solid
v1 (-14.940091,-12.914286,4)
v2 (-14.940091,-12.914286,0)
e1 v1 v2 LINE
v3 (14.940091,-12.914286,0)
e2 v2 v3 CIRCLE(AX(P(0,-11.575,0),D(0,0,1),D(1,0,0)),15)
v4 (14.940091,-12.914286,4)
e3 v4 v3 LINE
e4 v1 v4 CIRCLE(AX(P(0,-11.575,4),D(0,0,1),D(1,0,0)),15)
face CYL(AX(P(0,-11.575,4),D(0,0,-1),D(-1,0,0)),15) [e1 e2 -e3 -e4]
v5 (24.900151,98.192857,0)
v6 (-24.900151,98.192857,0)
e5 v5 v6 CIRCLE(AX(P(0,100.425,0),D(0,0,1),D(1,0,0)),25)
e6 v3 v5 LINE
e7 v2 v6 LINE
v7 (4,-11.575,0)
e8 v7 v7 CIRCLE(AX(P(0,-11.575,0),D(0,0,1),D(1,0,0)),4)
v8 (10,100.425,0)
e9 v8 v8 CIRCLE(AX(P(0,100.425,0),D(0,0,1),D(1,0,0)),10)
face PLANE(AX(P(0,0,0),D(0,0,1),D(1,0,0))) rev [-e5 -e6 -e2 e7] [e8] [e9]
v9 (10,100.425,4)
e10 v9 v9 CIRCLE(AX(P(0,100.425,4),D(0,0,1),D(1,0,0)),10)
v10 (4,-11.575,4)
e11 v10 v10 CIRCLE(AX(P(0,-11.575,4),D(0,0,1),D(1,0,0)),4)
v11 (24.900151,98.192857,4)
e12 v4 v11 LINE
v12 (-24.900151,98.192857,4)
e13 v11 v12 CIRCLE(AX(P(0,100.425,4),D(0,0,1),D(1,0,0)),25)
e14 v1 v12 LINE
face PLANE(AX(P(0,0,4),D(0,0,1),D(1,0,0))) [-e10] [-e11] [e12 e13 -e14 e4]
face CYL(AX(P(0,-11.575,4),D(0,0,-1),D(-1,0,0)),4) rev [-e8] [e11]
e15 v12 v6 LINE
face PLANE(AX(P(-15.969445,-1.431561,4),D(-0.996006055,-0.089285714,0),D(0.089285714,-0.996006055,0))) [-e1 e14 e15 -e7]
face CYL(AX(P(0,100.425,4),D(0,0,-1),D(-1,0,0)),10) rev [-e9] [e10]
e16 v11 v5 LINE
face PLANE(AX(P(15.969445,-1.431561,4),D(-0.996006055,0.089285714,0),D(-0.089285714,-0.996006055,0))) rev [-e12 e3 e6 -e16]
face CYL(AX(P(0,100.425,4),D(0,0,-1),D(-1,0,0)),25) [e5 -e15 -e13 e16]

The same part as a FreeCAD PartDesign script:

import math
import FreeCAD as App
import Part
import Sketcher
from FreeCAD import Vector
Q = App.Units.Quantity

doc = App.newDocument("Part")
params = doc.addObject("Spreadsheet::Sheet", "Params")
for row, (alias, value) in enumerate([
    ("sketch1_diameter", "8 mm"),
    ("sketch1_diameter2", "20 mm"),
    ("sketch1_radius", "15 mm"),
    ("sketch1_radius2", "25 mm"),
    ("pad1_length", "4 mm"),
], start=1):
    params.set(f"A{row}", alias)
    params.set(f"B{row}", "=" + value)
    params.setAlias(f"B{row}", alias)

body = doc.addObject("PartDesign::Body", "Body")

# Sketch on XY plane
sketch1 = doc.addObject("Sketcher::SketchObject", "Sketch")
body.addObject(sketch1)
sketch1.AttachmentSupport = (doc.XY_Plane, [""])
sketch1.MapMode = "FlatFace"
sketch1.addGeometry(Part.LineSegment(Vector(-24.900151, 98.192857, 0), Vector(-14.940091, -12.914286, 0)), False)
sketch1.addGeometry(Part.ArcOfCircle(Part.Circle(Vector(0, -11.575, 0), Vector(0, 0, 1), 15), math.radians(-174.877484), math.radians(-5.122516)), False)
sketch1.addGeometry(Part.LineSegment(Vector(14.940091, -12.914286, 0), Vector(24.900151, 98.192857, 0)), False)
sketch1.addGeometry(Part.ArcOfCircle(Part.Circle(Vector(0, 100.425, 0), Vector(0, 0, 1), 25), math.radians(-5.122516), math.radians(185.122516)), False)
sketch1.addGeometry(Part.Circle(Vector(0, -11.575, 0), Vector(0, 0, 1), 4), False)
sketch1.addGeometry(Part.Circle(Vector(0, 100.425, 0), Vector(0, 0, 1), 10), False)
sketch1.addConstraint(Sketcher.Constraint("Tangent", 0, 2, 1, 1))
sketch1.addConstraint(Sketcher.Constraint("Tangent", 1, 2, 2, 1))
sketch1.addConstraint(Sketcher.Constraint("Tangent", 2, 2, 3, 1))
sketch1.addConstraint(Sketcher.Constraint("Tangent", 3, 2, 0, 1))
sketch1.addConstraint(Sketcher.Constraint("Coincident", 4, 3, 1, 3))
sketch1.addConstraint(Sketcher.Constraint("Coincident", 5, 3, 3, 3))
sketch1.addConstraint(Sketcher.Constraint("Symmetric", 0, 2, 1, 2, -2))
sketch1.addConstraint(Sketcher.Constraint("Diameter", 4, Q("8 mm")))
sketch1.addConstraint(Sketcher.Constraint("Diameter", 5, Q("20 mm")))
sketch1.addConstraint(Sketcher.Constraint("Radius", 1, Q("15 mm")))
sketch1.addConstraint(Sketcher.Constraint("Radius", 3, Q("25 mm")))
sketch1.addConstraint(Sketcher.Constraint("DistanceY", 1, 3, 3, 3, Q("112 mm")))
sketch1.addConstraint(Sketcher.Constraint("DistanceY", 1, 3, -1, 1, Q("11.575 mm")))
sketch1.setExpression("Constraints[7]", "Params.sketch1_diameter")
sketch1.setExpression("Constraints[8]", "Params.sketch1_diameter2")
sketch1.setExpression("Constraints[9]", "Params.sketch1_radius")
sketch1.setExpression("Constraints[10]", "Params.sketch1_radius2")
pad1 = doc.addObject("PartDesign::Pad", "Pad")
body.addObject(pad1)
pad1.Profile = sketch1
pad1.setExpression("Length", "Params.pad1_length")

doc.recompute()
